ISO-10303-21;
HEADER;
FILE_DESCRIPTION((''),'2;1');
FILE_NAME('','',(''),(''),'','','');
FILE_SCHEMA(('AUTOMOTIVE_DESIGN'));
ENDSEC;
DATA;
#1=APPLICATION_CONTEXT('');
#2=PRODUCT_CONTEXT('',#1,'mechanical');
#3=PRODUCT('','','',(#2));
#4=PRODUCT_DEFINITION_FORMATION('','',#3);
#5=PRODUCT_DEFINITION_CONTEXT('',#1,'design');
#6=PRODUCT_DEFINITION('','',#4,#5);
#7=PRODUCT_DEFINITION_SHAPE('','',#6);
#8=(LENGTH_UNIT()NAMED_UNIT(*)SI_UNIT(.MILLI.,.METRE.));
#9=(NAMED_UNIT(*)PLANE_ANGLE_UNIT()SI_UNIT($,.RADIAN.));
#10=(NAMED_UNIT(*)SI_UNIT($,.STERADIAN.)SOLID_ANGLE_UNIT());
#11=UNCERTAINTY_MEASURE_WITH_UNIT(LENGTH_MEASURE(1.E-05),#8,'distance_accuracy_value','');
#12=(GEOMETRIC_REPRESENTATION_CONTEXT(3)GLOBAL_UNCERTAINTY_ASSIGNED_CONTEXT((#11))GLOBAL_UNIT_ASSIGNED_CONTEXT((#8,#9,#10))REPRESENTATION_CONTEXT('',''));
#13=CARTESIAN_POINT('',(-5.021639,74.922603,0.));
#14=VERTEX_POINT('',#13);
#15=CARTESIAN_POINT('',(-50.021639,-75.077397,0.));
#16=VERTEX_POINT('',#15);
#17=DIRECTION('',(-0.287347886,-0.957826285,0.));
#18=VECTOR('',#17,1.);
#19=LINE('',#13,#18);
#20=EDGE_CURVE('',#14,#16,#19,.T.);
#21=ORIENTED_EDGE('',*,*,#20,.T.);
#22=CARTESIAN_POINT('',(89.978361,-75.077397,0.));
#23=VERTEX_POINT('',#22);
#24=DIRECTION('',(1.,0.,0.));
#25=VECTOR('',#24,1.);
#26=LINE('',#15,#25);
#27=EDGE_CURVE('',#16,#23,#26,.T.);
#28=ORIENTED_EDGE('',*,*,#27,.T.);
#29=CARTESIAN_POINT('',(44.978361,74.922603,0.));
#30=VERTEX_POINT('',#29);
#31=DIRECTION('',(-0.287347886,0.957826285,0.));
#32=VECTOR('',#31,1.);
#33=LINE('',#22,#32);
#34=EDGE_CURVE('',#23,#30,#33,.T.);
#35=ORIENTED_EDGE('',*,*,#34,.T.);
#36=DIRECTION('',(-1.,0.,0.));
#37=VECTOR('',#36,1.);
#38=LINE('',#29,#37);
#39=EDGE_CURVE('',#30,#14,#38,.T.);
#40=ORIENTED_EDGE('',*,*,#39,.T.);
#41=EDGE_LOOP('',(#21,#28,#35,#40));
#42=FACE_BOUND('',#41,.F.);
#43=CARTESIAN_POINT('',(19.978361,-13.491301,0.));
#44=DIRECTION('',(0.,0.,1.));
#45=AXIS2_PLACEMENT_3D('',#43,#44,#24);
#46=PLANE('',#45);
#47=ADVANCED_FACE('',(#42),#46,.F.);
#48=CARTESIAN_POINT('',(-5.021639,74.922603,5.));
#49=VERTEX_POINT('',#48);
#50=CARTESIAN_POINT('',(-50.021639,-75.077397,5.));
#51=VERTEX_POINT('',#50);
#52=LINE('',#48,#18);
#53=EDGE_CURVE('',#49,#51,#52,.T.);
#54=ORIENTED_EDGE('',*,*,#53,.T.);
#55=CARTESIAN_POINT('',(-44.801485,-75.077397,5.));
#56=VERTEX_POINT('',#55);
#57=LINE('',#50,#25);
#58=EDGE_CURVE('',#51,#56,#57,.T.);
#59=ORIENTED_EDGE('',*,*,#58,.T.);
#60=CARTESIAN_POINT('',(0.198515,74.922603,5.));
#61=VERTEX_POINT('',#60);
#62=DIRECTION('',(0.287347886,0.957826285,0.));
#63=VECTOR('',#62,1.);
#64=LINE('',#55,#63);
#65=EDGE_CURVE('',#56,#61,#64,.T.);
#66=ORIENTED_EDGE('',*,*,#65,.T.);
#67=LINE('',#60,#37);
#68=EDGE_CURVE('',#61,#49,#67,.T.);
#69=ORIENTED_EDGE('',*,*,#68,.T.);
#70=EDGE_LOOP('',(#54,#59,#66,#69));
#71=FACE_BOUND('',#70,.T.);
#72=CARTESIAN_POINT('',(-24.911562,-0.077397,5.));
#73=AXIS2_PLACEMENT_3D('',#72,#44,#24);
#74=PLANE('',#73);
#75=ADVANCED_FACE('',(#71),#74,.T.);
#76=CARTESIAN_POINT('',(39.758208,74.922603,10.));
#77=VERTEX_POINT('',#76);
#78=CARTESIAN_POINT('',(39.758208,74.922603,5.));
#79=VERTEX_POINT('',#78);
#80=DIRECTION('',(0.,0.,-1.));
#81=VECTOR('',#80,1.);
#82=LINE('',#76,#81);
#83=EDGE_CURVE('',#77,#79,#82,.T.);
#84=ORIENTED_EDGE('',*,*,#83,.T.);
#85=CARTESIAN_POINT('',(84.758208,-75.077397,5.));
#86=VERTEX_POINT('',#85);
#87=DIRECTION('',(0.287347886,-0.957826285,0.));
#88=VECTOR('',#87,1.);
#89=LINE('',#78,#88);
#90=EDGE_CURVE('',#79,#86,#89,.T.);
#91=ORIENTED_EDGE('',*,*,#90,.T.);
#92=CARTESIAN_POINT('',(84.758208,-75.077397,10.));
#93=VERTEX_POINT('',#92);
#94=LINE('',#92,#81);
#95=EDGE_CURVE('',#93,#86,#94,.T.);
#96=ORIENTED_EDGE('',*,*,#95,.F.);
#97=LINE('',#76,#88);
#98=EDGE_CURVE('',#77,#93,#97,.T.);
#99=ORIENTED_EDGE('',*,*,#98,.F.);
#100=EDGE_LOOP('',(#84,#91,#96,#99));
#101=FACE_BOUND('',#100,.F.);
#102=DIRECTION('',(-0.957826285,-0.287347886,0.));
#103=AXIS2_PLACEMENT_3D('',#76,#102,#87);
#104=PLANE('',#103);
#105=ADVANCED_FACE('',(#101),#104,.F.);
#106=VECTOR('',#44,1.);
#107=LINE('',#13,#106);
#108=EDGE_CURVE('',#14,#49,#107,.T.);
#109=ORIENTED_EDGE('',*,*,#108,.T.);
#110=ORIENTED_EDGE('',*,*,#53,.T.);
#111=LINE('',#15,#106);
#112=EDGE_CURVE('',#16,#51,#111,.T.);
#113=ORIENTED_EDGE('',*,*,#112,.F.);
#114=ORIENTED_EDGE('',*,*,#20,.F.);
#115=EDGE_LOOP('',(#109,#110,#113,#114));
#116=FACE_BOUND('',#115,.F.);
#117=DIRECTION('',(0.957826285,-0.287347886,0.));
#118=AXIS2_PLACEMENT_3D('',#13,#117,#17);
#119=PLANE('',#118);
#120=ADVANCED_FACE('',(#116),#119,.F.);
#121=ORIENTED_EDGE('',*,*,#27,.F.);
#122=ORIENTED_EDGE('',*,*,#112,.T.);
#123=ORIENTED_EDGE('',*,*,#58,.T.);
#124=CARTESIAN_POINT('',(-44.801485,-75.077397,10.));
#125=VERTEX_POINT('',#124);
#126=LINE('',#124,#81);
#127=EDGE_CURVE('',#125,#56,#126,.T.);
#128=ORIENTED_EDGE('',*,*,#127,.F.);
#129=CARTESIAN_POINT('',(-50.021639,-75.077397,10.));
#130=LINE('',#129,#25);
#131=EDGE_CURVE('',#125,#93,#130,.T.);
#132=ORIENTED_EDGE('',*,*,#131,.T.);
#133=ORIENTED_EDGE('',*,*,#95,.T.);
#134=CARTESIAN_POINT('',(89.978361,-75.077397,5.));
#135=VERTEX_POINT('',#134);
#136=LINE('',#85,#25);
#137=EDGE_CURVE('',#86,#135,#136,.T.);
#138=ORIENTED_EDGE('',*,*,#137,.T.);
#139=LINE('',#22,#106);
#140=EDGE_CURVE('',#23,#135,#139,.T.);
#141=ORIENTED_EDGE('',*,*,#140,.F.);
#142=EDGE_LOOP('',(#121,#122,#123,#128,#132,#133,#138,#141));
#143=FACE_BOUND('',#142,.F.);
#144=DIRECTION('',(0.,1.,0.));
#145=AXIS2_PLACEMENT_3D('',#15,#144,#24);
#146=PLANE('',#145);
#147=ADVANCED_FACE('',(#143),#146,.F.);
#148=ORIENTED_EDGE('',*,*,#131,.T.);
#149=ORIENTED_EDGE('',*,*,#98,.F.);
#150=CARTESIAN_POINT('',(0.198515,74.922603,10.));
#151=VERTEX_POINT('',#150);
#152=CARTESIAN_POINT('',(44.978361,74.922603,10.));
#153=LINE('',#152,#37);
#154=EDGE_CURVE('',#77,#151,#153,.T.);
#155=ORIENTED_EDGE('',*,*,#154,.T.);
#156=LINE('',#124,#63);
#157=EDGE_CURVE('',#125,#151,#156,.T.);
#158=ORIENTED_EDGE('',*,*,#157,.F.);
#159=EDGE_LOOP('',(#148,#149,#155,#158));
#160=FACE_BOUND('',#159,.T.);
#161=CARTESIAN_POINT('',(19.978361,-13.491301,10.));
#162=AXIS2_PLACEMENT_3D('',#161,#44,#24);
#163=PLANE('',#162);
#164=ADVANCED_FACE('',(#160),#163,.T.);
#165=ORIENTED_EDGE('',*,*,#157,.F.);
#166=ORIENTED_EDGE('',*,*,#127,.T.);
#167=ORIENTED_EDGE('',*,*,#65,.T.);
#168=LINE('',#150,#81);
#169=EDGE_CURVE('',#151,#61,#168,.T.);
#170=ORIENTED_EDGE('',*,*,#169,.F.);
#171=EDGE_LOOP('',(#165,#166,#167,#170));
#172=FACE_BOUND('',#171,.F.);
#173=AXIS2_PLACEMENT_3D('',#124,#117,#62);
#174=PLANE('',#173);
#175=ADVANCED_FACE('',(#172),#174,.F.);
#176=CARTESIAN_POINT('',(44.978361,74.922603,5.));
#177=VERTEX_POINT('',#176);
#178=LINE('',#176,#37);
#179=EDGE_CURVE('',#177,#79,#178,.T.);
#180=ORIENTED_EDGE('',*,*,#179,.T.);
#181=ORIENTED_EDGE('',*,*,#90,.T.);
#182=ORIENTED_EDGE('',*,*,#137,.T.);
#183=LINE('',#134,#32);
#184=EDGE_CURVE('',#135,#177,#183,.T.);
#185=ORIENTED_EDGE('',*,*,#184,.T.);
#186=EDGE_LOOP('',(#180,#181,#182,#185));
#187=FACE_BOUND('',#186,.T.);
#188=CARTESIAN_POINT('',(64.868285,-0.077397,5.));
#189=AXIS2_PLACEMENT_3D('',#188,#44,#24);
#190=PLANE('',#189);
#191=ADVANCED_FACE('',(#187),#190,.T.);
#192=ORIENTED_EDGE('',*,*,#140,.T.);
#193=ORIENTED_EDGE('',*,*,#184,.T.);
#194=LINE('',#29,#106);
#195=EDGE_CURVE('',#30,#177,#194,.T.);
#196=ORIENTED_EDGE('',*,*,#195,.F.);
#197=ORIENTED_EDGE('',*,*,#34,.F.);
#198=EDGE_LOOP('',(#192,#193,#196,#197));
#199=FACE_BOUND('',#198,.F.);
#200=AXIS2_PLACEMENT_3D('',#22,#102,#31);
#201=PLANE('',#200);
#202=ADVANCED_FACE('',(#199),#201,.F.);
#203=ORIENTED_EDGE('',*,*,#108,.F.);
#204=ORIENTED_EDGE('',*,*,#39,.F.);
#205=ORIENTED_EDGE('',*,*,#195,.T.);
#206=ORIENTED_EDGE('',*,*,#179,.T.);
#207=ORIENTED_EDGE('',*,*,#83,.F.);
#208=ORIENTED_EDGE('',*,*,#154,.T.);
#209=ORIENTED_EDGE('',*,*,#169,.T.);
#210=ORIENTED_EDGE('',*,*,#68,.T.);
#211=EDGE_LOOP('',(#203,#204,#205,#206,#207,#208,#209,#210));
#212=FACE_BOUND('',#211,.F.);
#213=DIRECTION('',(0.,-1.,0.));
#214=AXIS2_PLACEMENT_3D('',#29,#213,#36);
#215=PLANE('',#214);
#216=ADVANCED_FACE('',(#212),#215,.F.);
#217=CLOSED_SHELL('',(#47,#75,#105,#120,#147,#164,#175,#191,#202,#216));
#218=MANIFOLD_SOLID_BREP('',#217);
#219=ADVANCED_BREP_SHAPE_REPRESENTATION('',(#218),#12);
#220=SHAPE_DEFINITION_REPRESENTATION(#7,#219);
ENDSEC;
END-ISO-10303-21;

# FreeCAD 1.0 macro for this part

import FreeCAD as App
import Part
import Sketcher
Q = App.Units.Quantity

doc = App.newDocument("Part")
params = doc.addObject("Spreadsheet::Sheet", "Params")
for row, (alias, value) in enumerate([
    ("sketch1_width", "50 mm"),
    ("sketch1_width2", "140 mm"),
    ("pad1_length", "10 mm"),
    ("pocket1_length", "5 mm"),
    ("pocket2_length", "5 mm"),
], start=1):
    params.set(f"A{row}", alias)
    params.set(f"B{row}", "=" + value)
    params.setAlias(f"B{row}", alias)

body = doc.addObject("PartDesign::Body", "Body")

# Sketch on XY plane
sketch1 = body.newObject("Sketcher::SketchObject", "Sketch")
sketch1.AttachmentSupport = (doc.getObject("XY_Plane"), [""])
sketch1.MapMode = "FlatFace"
sketch1.addGeometry(Part.LineSegment(App.Vector(45, 75, 0), App.Vector(-5, 75, 0)), False)
sketch1.addGeometry(Part.LineSegment(App.Vector(-5, 75, 0), App.Vector(-50, -75, 0)), False)
sketch1.addGeometry(Part.LineSegment(App.Vector(-50, -75, 0), App.Vector(90, -75, 0)), False)
sketch1.addGeometry(Part.LineSegment(App.Vector(90, -75, 0), App.Vector(45, 75, 0)), False)
sketch1.addConstraint(Sketcher.Constraint("Coincident", 0, 2, 1, 1))
sketch1.addConstraint(Sketcher.Constraint("Coincident", 1, 2, 2, 1))
sketch1.addConstraint(Sketcher.Constraint("Coincident", 2, 2, 3, 1))
sketch1.addConstraint(Sketcher.Constraint("Coincident", 3, 2, 0, 1))
sketch1.addConstraint(Sketcher.Constraint("Horizontal", 0))
sketch1.addConstraint(Sketcher.Constraint("Horizontal", 2))
sketch1.addConstraint(Sketcher.Constraint("Equal", 1, 3))
sketch1.addConstraint(Sketcher.Constraint("DistanceX", 0, 2, 0, 1, Q("50 mm")))
sketch1.addConstraint(Sketcher.Constraint("DistanceX", 2, 1, 2, 2, Q("140 mm")))
sketch1.addConstraint(Sketcher.Constraint("DistanceY", 1, 2, 0, 2, Q("150 mm")))
sketch1.addConstraint(Sketcher.Constraint("DistanceX", 0, 2, -1, 1, Q("5.021639 mm")))
sketch1.addConstraint(Sketcher.Constraint("DistanceY", -1, 1, 0, 2, Q("74.922603 mm")))
sketch1.setExpression("Constraints[7]", "Params.sketch1_width")
sketch1.setExpression("Constraints[8]", "Params.sketch1_width2")
pad1 = body.newObject("PartDesign::Pad", "Pad")
pad1.Profile = sketch1
pad1.setExpression("Length", "Params.pad1_length")

# Sketch on XY plane
sketch2 = body.newObject("Sketcher::SketchObject", "Sketch001")
sketch2.AttachmentSupport = (doc.getObject("XY_Plane"), [""])
sketch2.MapMode = "FlatFace"
sketch2.AttachmentOffset = App.Placement(App.Vector(0, 0, 10), App.Rotation())
sketch2.addGeometry(Part.LineSegment(App.Vector(45, 75, 0), App.Vector(40, 75, 0)), False)
sketch2.addGeometry(Part.LineSegment(App.Vector(40, 75, 0), App.Vector(85, -75, 0)), False)
sketch2.addGeometry(Part.LineSegment(App.Vector(85, -75, 0), App.Vector(90, -75, 0)), False)
sketch2.addGeometry(Part.LineSegment(App.Vector(90, -75, 0), App.Vector(45, 75, 0)), False)
sketch2.addGeometry(Part.LineSegment(App.Vector(-45, -75, 0), App.Vector(0, 75, 0)), False)
sketch2.addGeometry(Part.LineSegment(App.Vector(0, 75, 0), App.Vector(-5, 75, 0)), False)
sketch2.addGeometry(Part.LineSegment(App.Vector(-5, 75, 0), App.Vector(-50, -75, 0)), False)
sketch2.addGeometry(Part.LineSegment(App.Vector(-50, -75, 0), App.Vector(-45, -75, 0)), False)
sketch2.addConstraint(Sketcher.Constraint("Coincident", 0, 2, 1, 1))
sketch2.addConstraint(Sketcher.Constraint("Coincident", 1, 2, 2, 1))
sketch2.addConstraint(Sketcher.Constraint("Coincident", 2, 2, 3, 1))
sketch2.addConstraint(Sketcher.Constraint("Coincident", 3, 2, 0, 1))
sketch2.addConstraint(Sketcher.Constraint("Coincident", 4, 2, 5, 1))
sketch2.addConstraint(Sketcher.Constraint("Coincident", 5, 2, 6, 1))
sketch2.addConstraint(Sketcher.Constraint("Coincident", 6, 2, 7, 1))
sketch2.addConstraint(Sketcher.Constraint("Coincident", 7, 2, 4, 1))
sketch2.addConstraint(Sketcher.Constraint("Horizontal", 0))
sketch2.addConstraint(Sketcher.Constraint("Horizontal", 2))
sketch2.addConstraint(Sketcher.Constraint("Horizontal", 5))
sketch2.addConstraint(Sketcher.Constraint("Horizontal", 7))
sketch2.addConstraint(Sketcher.Constraint("Parallel", 1, 3))
sketch2.addConstraint(Sketcher.Constraint("Parallel", 4, 6))
sketch2.addConstraint(Sketcher.Constraint("Horizontal", 3, 2, 4, 2))
sketch2.addConstraint(Sketcher.Constraint("Horizontal", 2, 2, 6, 2))
sketch2.addConstraint(Sketcher.Constraint("Equal", 2, 5))
sketch2.addConstraint(Sketcher.Constraint("Equal", 3, 4))
sketch2.addConstraint(Sketcher.Constraint("DistanceX", 0, 2, 1, 2, Q("45 mm")))
sketch2.addConstraint(Sketcher.Constraint("DistanceY", 1, 2, 0, 2, Q("150 mm")))
sketch2.addConstraint(Sketcher.Constraint("DistanceX", 5, 2, 3, 2, Q("50 mm")))
sketch2.addConstraint(Sketcher.Constraint("DistanceX", 0, 2, 0, 1, Q("5.220153 mm")))
sketch2.addConstraint(Sketcher.Constraint("DistanceX", -1, 1, 0, 2, Q("39.758208 mm")))
sketch2.addConstraint(Sketcher.Constraint("DistanceY", -1, 1, 0, 2, Q("74.922603 mm")))
pocket1 = body.newObject("PartDesign::Pocket", "Pocket")
pocket1.Profile = sketch2
pocket1.setExpression("Length", "Params.pocket1_length")

# Sketch on XY plane
sketch3 = body.newObject("Sketcher::SketchObject", "Sketch002")
sketch3.AttachmentSupport = (doc.getObject("XY_Plane"), [""])
sketch3.MapMode = "FlatFace"
sketch3.AttachmentOffset = App.Placement(App.Vector(0, 0, 10), App.Rotation())
sketch3.addGeometry(Part.LineSegment(App.Vector(45, 75, 0), App.Vector(40, 75, 0)), False)
sketch3.addGeometry(Part.LineSegment(App.Vector(40, 75, 0), App.Vector(85, -75, 0)), False)
sketch3.addGeometry(Part.LineSegment(App.Vector(85, -75, 0), App.Vector(90, -75, 0)), False)
sketch3.addGeometry(Part.LineSegment(App.Vector(90, -75, 0), App.Vector(45, 75, 0)), False)
sketch3.addGeometry(Part.LineSegment(App.Vector(-45, -75, 0), App.Vector(0, 75, 0)), False)
sketch3.addGeometry(Part.LineSegment(App.Vector(0, 75, 0), App.Vector(-5, 75, 0)), False)
sketch3.addGeometry(Part.LineSegment(App.Vector(-5, 75, 0), App.Vector(-50, -75, 0)), False)
sketch3.addGeometry(Part.LineSegment(App.Vector(-50, -75, 0), App.Vector(-45, -75, 0)), False)
sketch3.addConstraint(Sketcher.Constraint("Coincident", 0, 2, 1, 1))
sketch3.addConstraint(Sketcher.Constraint("Coincident", 1, 2, 2, 1))
sketch3.addConstraint(Sketcher.Constraint("Coincident", 2, 2, 3, 1))
sketch3.addConstraint(Sketcher.Constraint("Coincident", 3, 2, 0, 1))
sketch3.addConstraint(Sketcher.Constraint("Coincident", 4, 2, 5, 1))
sketch3.addConstraint(Sketcher.Constraint("Coincident", 5, 2, 6, 1))
sketch3.addConstraint(Sketcher.Constraint("Coincident", 6, 2, 7, 1))
sketch3.addConstraint(Sketcher.Constraint("Coincident", 7, 2, 4, 1))
sketch3.addConstraint(Sketcher.Constraint("Horizontal", 0))
sketch3.addConstraint(Sketcher.Constraint("Horizontal", 2))
sketch3.addConstraint(Sketcher.Constraint("Horizontal", 5))
sketch3.addConstraint(Sketcher.Constraint("Horizontal", 7))
sketch3.addConstraint(Sketcher.Constraint("Parallel", 1, 3))
sketch3.addConstraint(Sketcher.Constraint("Parallel", 4, 6))
sketch3.addConstraint(Sketcher.Constraint("Horizontal", 3, 2, 4, 2))
sketch3.addConstraint(Sketcher.Constraint("Horizontal", 2, 2, 6, 2))
sketch3.addConstraint(Sketcher.Constraint("Equal", 2, 5))
sketch3.addConstraint(Sketcher.Constraint("Equal", 3, 4))
sketch3.addConstraint(Sketcher.Constraint("DistanceX", 0, 2, 1, 2, Q("45 mm")))
sketch3.addConstraint(Sketcher.Constraint("DistanceY", 1, 2, 0, 2, Q("150 mm")))
sketch3.addConstraint(Sketcher.Constraint("DistanceX", 5, 2, 3, 2, Q("50 mm")))
sketch3.addConstraint(Sketcher.Constraint("DistanceX", 0, 2, 0, 1, Q("5.220153 mm")))
sketch3.addConstraint(Sketcher.Constraint("DistanceX", -1, 1, 0, 2, Q("39.758208 mm")))
sketch3.addConstraint(Sketcher.Constraint("DistanceY", -1, 1, 0, 2, Q("74.922603 mm")))
pocket2 = body.newObject("PartDesign::Pocket", "Pocket001")
pocket2.Profile = sketch3
pocket2.setExpression("Length", "Params.pocket2_length")

doc.recompute()
